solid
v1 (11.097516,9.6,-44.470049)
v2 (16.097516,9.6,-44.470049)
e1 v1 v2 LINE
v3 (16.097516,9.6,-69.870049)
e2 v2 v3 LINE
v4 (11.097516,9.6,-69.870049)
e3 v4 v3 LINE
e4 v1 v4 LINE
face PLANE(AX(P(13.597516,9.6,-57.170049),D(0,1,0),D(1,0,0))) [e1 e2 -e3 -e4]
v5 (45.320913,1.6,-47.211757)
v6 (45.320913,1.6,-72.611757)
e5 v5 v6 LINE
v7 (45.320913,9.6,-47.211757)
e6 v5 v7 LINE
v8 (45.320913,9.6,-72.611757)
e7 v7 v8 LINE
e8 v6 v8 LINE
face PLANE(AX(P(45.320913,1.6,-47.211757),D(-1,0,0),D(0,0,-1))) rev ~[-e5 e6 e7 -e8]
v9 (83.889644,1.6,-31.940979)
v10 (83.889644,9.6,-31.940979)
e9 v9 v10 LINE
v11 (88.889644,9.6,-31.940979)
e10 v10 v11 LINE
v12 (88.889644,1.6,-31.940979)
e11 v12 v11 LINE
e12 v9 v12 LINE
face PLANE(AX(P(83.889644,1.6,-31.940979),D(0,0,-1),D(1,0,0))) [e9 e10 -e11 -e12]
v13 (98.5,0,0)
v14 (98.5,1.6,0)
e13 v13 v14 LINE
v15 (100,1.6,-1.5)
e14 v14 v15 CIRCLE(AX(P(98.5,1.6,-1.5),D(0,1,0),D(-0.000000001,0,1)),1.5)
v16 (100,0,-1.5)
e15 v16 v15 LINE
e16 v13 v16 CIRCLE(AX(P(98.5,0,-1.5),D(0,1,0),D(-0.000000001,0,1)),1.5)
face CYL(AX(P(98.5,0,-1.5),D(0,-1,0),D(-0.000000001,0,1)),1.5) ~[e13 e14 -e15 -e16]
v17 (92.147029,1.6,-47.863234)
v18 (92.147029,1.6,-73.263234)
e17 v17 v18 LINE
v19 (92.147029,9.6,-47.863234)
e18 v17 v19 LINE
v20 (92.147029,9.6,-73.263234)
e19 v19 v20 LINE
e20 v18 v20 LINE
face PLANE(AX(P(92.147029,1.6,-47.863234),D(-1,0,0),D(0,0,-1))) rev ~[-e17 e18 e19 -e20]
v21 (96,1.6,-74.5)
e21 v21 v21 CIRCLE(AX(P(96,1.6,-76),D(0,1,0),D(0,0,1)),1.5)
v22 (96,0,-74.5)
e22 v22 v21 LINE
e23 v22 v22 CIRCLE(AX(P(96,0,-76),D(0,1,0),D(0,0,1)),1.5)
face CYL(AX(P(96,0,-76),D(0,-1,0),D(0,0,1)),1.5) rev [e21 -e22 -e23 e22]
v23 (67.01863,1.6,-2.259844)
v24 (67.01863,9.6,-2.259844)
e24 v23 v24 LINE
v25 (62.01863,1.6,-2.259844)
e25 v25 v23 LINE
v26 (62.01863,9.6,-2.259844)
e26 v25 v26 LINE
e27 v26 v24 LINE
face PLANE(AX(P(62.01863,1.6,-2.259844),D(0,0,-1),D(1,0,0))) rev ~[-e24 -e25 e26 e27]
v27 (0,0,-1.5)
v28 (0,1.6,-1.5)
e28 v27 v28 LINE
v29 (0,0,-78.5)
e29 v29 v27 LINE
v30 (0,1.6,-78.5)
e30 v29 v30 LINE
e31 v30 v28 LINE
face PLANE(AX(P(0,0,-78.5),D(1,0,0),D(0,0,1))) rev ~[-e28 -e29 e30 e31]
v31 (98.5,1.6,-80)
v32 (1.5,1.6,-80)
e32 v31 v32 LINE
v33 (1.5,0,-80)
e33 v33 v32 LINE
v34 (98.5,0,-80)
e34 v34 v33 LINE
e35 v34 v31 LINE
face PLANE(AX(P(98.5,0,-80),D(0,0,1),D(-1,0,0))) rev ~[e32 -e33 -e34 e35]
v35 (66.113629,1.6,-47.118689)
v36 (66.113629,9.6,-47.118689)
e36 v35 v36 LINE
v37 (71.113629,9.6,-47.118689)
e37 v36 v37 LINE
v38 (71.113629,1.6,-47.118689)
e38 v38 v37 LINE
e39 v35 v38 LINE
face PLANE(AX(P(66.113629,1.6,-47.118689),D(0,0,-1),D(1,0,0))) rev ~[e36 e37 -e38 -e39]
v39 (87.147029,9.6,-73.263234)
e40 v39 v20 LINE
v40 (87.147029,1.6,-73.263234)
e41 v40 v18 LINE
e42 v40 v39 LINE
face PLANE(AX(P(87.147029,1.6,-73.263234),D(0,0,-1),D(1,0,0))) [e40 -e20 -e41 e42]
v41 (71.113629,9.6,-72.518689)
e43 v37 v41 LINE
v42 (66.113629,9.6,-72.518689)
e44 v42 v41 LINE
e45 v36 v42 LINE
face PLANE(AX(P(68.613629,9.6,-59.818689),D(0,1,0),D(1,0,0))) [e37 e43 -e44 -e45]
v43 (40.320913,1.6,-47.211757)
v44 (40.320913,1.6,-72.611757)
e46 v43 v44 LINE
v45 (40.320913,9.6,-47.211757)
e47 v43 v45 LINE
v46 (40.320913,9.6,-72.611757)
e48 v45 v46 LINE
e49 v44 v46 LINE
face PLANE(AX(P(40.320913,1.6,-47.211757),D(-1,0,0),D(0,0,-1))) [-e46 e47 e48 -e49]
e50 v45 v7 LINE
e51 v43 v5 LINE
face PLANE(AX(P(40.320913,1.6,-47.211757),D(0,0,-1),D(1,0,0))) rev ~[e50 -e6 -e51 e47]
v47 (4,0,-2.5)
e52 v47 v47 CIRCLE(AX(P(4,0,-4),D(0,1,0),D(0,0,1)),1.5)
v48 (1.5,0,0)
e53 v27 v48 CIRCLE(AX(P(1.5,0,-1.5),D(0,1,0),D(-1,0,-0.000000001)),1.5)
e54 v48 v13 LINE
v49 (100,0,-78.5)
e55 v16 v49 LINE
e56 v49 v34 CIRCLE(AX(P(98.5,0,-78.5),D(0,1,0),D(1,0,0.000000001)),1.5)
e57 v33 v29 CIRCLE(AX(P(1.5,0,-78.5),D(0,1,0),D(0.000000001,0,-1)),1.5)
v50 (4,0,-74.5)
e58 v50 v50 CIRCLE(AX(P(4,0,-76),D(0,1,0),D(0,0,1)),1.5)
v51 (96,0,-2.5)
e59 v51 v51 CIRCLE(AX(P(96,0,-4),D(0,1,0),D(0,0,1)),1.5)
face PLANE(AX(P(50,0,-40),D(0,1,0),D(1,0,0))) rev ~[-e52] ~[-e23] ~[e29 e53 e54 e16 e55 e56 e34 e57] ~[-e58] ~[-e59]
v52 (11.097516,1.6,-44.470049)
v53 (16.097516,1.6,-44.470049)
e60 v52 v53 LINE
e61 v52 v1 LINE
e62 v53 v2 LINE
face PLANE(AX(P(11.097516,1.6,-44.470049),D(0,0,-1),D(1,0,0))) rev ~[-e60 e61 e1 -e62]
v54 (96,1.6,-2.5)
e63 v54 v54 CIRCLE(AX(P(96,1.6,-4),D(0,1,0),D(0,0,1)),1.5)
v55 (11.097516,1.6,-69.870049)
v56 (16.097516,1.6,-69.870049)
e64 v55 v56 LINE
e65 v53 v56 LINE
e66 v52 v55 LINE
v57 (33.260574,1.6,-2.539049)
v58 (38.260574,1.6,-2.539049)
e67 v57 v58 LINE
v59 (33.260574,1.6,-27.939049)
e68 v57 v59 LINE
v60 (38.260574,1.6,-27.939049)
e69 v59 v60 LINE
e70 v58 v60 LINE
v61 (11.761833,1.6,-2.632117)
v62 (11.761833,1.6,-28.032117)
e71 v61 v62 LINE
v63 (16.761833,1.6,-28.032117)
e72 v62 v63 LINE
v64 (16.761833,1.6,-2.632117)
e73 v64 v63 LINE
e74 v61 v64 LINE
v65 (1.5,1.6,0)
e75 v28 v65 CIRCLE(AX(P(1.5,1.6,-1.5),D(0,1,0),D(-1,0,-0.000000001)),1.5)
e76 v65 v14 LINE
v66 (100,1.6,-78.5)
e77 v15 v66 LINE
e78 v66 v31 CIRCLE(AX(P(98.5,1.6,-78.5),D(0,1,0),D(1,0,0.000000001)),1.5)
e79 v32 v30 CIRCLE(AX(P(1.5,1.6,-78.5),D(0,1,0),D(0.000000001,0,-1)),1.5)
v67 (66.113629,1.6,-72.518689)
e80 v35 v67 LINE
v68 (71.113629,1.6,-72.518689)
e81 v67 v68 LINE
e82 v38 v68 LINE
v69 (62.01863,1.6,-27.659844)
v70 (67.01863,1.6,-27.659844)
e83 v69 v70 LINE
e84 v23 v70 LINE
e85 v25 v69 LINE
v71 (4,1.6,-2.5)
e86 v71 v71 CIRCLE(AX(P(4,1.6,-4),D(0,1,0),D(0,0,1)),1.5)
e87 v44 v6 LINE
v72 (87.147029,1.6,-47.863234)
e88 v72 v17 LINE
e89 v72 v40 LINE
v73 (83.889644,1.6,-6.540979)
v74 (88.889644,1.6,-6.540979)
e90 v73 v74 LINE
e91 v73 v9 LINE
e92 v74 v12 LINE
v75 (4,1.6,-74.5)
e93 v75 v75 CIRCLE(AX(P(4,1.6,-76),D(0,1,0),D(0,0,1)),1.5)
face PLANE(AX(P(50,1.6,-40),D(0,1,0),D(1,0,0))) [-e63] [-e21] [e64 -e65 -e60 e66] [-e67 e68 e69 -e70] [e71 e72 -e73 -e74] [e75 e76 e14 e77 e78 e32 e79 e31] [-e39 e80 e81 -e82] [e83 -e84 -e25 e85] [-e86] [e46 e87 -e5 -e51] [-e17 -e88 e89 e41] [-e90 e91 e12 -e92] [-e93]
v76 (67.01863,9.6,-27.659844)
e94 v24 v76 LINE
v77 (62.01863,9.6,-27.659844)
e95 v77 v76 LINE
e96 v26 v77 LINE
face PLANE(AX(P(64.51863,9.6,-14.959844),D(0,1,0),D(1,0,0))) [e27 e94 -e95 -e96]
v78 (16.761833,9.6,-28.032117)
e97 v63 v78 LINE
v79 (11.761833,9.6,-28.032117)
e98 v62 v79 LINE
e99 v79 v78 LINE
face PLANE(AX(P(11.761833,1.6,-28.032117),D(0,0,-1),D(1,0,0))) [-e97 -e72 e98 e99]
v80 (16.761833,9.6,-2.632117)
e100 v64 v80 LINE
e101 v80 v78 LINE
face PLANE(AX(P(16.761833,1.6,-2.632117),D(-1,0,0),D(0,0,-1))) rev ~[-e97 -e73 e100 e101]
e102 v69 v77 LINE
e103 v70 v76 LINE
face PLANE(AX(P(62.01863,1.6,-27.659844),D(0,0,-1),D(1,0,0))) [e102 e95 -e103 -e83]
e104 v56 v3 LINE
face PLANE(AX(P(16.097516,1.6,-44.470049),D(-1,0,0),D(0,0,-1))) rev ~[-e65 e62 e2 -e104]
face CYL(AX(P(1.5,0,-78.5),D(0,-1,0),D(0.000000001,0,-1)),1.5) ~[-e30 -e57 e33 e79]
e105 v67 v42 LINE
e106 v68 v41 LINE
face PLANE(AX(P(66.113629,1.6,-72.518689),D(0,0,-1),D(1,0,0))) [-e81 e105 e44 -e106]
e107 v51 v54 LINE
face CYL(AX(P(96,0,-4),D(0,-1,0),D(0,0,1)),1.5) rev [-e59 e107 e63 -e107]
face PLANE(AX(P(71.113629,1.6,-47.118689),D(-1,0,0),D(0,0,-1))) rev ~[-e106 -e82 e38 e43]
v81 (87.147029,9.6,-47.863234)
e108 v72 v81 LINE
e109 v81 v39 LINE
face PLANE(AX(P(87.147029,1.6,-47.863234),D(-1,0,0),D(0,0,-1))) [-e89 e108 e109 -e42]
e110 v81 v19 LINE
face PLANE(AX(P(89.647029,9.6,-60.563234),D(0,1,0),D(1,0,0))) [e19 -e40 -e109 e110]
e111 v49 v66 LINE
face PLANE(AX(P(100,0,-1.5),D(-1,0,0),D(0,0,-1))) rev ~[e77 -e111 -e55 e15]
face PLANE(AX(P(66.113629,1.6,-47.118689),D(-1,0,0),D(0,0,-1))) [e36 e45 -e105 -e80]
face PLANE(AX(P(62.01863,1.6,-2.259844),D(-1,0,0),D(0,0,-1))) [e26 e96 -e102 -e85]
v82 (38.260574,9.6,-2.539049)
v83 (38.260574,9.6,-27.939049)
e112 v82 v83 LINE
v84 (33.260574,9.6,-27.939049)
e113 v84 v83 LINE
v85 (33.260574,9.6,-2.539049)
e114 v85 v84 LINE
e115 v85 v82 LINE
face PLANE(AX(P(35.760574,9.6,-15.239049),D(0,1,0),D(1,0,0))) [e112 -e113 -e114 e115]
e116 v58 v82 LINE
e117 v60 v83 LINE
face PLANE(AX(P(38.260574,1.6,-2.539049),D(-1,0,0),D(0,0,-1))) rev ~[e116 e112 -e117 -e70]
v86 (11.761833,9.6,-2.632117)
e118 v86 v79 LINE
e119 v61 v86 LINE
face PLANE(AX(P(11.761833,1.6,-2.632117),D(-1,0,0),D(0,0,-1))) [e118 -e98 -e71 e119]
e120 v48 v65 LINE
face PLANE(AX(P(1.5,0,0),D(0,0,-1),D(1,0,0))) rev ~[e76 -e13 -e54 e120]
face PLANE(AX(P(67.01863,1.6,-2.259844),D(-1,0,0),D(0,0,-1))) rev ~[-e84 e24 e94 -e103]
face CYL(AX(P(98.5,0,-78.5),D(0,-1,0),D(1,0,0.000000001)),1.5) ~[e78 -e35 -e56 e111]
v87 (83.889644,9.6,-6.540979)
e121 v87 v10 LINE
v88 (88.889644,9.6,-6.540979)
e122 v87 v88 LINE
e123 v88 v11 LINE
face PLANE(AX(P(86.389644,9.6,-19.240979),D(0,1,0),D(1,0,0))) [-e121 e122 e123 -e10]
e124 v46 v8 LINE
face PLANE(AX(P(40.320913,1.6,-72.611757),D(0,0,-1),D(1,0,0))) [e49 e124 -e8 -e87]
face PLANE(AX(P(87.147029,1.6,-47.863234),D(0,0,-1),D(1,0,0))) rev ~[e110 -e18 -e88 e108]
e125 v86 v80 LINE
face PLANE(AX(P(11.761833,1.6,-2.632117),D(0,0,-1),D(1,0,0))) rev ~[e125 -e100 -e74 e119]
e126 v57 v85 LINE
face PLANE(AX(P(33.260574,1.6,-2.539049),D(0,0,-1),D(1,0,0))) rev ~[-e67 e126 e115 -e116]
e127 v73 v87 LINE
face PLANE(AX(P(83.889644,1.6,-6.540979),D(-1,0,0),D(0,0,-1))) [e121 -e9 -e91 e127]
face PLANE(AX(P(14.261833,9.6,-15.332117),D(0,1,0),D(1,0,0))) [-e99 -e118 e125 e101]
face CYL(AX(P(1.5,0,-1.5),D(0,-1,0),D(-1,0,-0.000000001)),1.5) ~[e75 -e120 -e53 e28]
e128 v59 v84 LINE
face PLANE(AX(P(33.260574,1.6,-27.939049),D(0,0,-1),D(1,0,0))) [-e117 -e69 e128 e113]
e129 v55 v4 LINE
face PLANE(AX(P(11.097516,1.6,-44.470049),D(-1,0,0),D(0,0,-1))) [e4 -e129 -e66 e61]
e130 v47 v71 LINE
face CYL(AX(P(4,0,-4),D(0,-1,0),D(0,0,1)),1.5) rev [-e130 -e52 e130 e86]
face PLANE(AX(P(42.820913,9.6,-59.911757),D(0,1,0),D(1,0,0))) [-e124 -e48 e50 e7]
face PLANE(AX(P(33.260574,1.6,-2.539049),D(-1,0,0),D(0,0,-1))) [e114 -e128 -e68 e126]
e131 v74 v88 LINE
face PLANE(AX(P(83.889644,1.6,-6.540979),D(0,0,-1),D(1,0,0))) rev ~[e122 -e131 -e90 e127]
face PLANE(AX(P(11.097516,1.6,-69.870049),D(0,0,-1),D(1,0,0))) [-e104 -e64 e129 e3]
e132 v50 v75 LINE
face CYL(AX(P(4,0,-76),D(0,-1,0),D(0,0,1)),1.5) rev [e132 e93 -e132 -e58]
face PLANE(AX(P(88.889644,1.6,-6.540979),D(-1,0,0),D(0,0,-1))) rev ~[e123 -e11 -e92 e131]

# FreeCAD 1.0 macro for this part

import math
import FreeCAD as App
import Part
import Sketcher

V = App.Vector


def add_polygon(sketch, points):
    """Adds a closed chain of lines whose ends are joined by coincident constraints."""
    first, n = sketch.GeometryCount, len(points)
    for a, b in zip(points, points[1:] + points[:1]):
        sketch.addGeometry(Part.LineSegment(App.Vector(*a, 0), App.Vector(*b, 0)), False)
    for i in range(n):
        sketch.addConstraint(Sketcher.Constraint("Coincident", first + i, 2, first + (i + 1) % n, 1))

doc = App.newDocument("Part")
body = doc.addObject("PartDesign::Body", "Body")

sketch1 = body.newObject("Sketcher::SketchObject", "Sketch")
sketch1.AttachmentSupport = (doc.getObject("XZ_Plane"), [""])
sketch1.MapMode = "FlatFace"
sketch1.addGeometry(Part.LineSegment(V(1.5, 0, 0), V(98.5, 0, 0)), False)
sketch1.addGeometry(Part.ArcOfCircle(Part.Circle(V(98.5, -1.5, 0), V(0, 0, 1), 1.5), math.radians(0), math.radians(90)), False)
sketch1.addGeometry(Part.LineSegment(V(100, -1.5, 0), V(100, -78.5, 0)), False)
sketch1.addGeometry(Part.ArcOfCircle(Part.Circle(V(98.5, -78.5, 0), V(0, 0, 1), 1.5), math.radians(-90), math.radians(0)), False)
sketch1.addGeometry(Part.LineSegment(V(98.5, -80, 0), V(1.5, -80, 0)), False)
sketch1.addGeometry(Part.ArcOfCircle(Part.Circle(V(1.5, -78.5, 0), V(0, 0, 1), 1.5), math.radians(180), math.radians(270)), False)
sketch1.addGeometry(Part.LineSegment(V(0, -78.5, 0), V(0, -1.5, 0)), False)
sketch1.addGeometry(Part.ArcOfCircle(Part.Circle(V(1.5, -1.5, 0), V(0, 0, 1), 1.5), math.radians(90), math.radians(180)), False)
sketch1.addGeometry(Part.Circle(V(4, -4, 0), V(0, 0, 1), 1.5), False)
sketch1.addGeometry(Part.Circle(V(96, -4, 0), V(0, 0, 1), 1.5), False)
sketch1.addGeometry(Part.Circle(V(4, -76, 0), V(0, 0, 1), 1.5), False)
sketch1.addGeometry(Part.Circle(V(96, -76, 0), V(0, 0, 1), 1.5), False)
sketch1.addConstraint(Sketcher.Constraint("Tangent", 0, 2, 1, 2))
sketch1.addConstraint(Sketcher.Constraint("Tangent", 1, 1, 2, 1))
sketch1.addConstraint(Sketcher.Constraint("Tangent", 2, 2, 3, 2))
sketch1.addConstraint(Sketcher.Constraint("Tangent", 3, 1, 4, 1))
sketch1.addConstraint(Sketcher.Constraint("Tangent", 4, 2, 5, 2))
sketch1.addConstraint(Sketcher.Constraint("Tangent", 5, 1, 6, 1))
sketch1.addConstraint(Sketcher.Constraint("Tangent", 6, 2, 7, 2))
sketch1.addConstraint(Sketcher.Constraint("Tangent", 7, 1, 0, 1))
sketch1.addConstraint(Sketcher.Constraint("Horizontal", 0))
sketch1.addConstraint(Sketcher.Constraint("Vertical", 2))
sketch1.addConstraint(Sketcher.Constraint("Horizontal", 4))
sketch1.addConstraint(Sketcher.Constraint("Vertical", 6))
sketch1.addConstraint(Sketcher.Constraint("Equal", 1, 3))
sketch1.addConstraint(Sketcher.Constraint("Equal", 3, 5))
sketch1.addConstraint(Sketcher.Constraint("Equal", 5, 7))
sketch1.addConstraint(Sketcher.Constraint("Equal", 7, 8))
sketch1.addConstraint(Sketcher.Constraint("Equal", 8, 9))
sketch1.addConstraint(Sketcher.Constraint("Equal", 9, 10))
sketch1.addConstraint(Sketcher.Constraint("Equal", 10, 11))
sketch1.addConstraint(Sketcher.Constraint("PointOnObject", 0, 2, -1))
sketch1.addConstraint(Sketcher.Constraint("PointOnObject", 5, 1, -2))
sketch1.addConstraint(Sketcher.Constraint("Horizontal", 8, 3, 9, 3))
sketch1.addConstraint(Sketcher.Constraint("Horizontal", 10, 3, 11, 3))
sketch1.addConstraint(Sketcher.Constraint("Vertical", 8, 3, 10, 3))
sketch1.addConstraint(Sketcher.Constraint("Vertical", 9, 3, 11, 3))
sketch1.addConstraint(Sketcher.Constraint("Diameter", 8, 3.0))
sketch1.addConstraint(Sketcher.Constraint("DistanceX", 0, 1, 0, 2, 97.0))
sketch1.addConstraint(Sketcher.Constraint("DistanceY", 2, 2, 2, 1, 77.0))
sketch1.addConstraint(Sketcher.Constraint("DistanceX", -1, 1, 8, 3, 4.0))
sketch1.addConstraint(Sketcher.Constraint("DistanceY", 8, 3, -1, 1, 4.0))
sketch1.addConstraint(Sketcher.Constraint("DistanceX", -1, 1, 9, 3, 96.0))
sketch1.addConstraint(Sketcher.Constraint("DistanceY", 10, 3, -1, 1, 76.0))
pad1 = body.newObject("PartDesign::Pad", "Pad")
pad1.Profile = sketch1
pad1.Length = 1.6
pad1.Reversed = True

sketch2 = body.newObject("Sketcher::SketchObject", "Sketch001")
sketch2.AttachmentSupport = (doc.getObject("XZ_Plane"), [""])
sketch2.MapMode = "FlatFace"
sketch2.AttachmentOffset = App.Placement(V(0, 0, -1.6), App.Rotation())
add_polygon(sketch2, [(11.761833, -28.032117), (11.761833, -2.632117), (16.761833, -2.632117), (16.761833, -28.032117)])
add_polygon(sketch2, [(11.097516, -69.870049), (11.097516, -44.470049), (16.097516, -44.470049), (16.097516, -69.870049)])
add_polygon(sketch2, [(87.147029, -73.263234), (87.147029, -47.863234), (92.147029, -47.863234), (92.147029, -73.263234)])
add_polygon(sketch2, [(83.889644, -31.940979), (83.889644, -6.540979), (88.889644, -6.540979), (88.889644, -31.940979)])
add_polygon(sketch2, [(40.320913, -72.611757), (40.320913, -47.211757), (45.320913, -47.211757), (45.320913, -72.611757)])
add_polygon(sketch2, [(66.113629, -72.518689), (66.113629, -47.118689), (71.113629, -47.118689), (71.113629, -72.518689)])
add_polygon(sketch2, [(33.260574, -27.939049), (33.260574, -2.539049), (38.260574, -2.539049), (38.260574, -27.939049)])
add_polygon(sketch2, [(62.01863, -27.659844), (62.01863, -2.259844), (67.01863, -2.259844), (67.01863, -27.659844)])
sketch2.addConstraint(Sketcher.Constraint("Vertical", 0))
sketch2.addConstraint(Sketcher.Constraint("Horizontal", 1))
sketch2.addConstraint(Sketcher.Constraint("Vertical", 2))
sketch2.addConstraint(Sketcher.Constraint("Horizontal", 3))
sketch2.addConstraint(Sketcher.Constraint("Vertical", 4))
sketch2.addConstraint(Sketcher.Constraint("Horizontal", 5))
sketch2.addConstraint(Sketcher.Constraint("Vertical", 6))
sketch2.addConstraint(Sketcher.Constraint("Horizontal", 7))
sketch2.addConstraint(Sketcher.Constraint("Vertical", 8))
sketch2.addConstraint(Sketcher.Constraint("Horizontal", 9))
sketch2.addConstraint(Sketcher.Constraint("Vertical", 10))
sketch2.addConstraint(Sketcher.Constraint("Horizontal", 11))
sketch2.addConstraint(Sketcher.Constraint("Vertical", 12))
sketch2.addConstraint(Sketcher.Constraint("Horizontal", 13))
sketch2.addConstraint(Sketcher.Constraint("Vertical", 14))
sketch2.addConstraint(Sketcher.Constraint("Horizontal", 15))
sketch2.addConstraint(Sketcher.Constraint("Vertical", 16))
sketch2.addConstraint(Sketcher.Constraint("Horizontal", 17))
sketch2.addConstraint(Sketcher.Constraint("Vertical", 18))
sketch2.addConstraint(Sketcher.Constraint("Horizontal", 19))
sketch2.addConstraint(Sketcher.Constraint("Vertical", 20))
sketch2.addConstraint(Sketcher.Constraint("Horizontal", 21))
sketch2.addConstraint(Sketcher.Constraint("Vertical", 22))
sketch2.addConstraint(Sketcher.Constraint("Horizontal", 23))
sketch2.addConstraint(Sketcher.Constraint("Vertical", 24))
sketch2.addConstraint(Sketcher.Constraint("Horizontal", 25))
sketch2.addConstraint(Sketcher.Constraint("Vertical", 26))
sketch2.addConstraint(Sketcher.Constraint("Horizontal", 27))
sketch2.addConstraint(Sketcher.Constraint("Vertical", 28))
sketch2.addConstraint(Sketcher.Constraint("Horizontal", 29))
sketch2.addConstraint(Sketcher.Constraint("Vertical", 30))
sketch2.addConstraint(Sketcher.Constraint("Horizontal", 31))
sketch2.addConstraint(Sketcher.Constraint("Equal", 3, 5))
sketch2.addConstraint(Sketcher.Constraint("Equal", 7, 9))
sketch2.addConstraint(Sketcher.Constraint("Equal", 11, 13))
sketch2.addConstraint(Sketcher.Constraint("Equal", 15, 17))
sketch2.addConstraint(Sketcher.Constraint("Equal", 19, 21))
sketch2.addConstraint(Sketcher.Constraint("Equal", 23, 25))
sketch2.addConstraint(Sketcher.Constraint("Equal", 27, 29))
sketch2.addConstraint(Sketcher.Constraint("Equal", 2, 4))
sketch2.addConstraint(Sketcher.Constraint("Equal", 6, 8))
sketch2.addConstraint(Sketcher.Constraint("Equal", 10, 12))
sketch2.addConstraint(Sketcher.Constraint("Equal", 14, 16))
sketch2.addConstraint(Sketcher.Constraint("Equal", 18, 20))
sketch2.addConstraint(Sketcher.Constraint("Equal", 22, 24))
sketch2.addConstraint(Sketcher.Constraint("Equal", 26, 28))
sketch2.addConstraint(Sketcher.Constraint("DistanceX", 1, 1, 1, 2, 5.0))
sketch2.addConstraint(Sketcher.Constraint("DistanceY", 0, 1, 0, 2, 25.4))
sketch2.addConstraint(Sketcher.Constraint("DistanceX", 20, 2, 30, 2, 0.905002))
sketch2.addConstraint(Sketcher.Constraint("DistanceX", 20, 2, 8, 2, 21.0334))
sketch2.addConstraint(Sketcher.Constraint("DistanceY", 4, 2, -1, 1, 44.470049))
sketch2.addConstraint(Sketcher.Constraint("DistanceX", -1, 1, 8, 2, 87.147029))
sketch2.addConstraint(Sketcher.Constraint("DistanceY", 12, 2, -1, 1, 6.540979))
sketch2.addConstraint(Sketcher.Constraint("DistanceY", 20, 2, -1, 1, 47.118689))
sketch2.addConstraint(Sketcher.Constraint("DistanceY", 24, 2, -1, 1, 2.539049))
sketch2.addConstraint(Sketcher.Constraint("DistanceY", 4, 2, 3, 2, 16.437932))
sketch2.addConstraint(Sketcher.Constraint("DistanceX", 1, 2, 12, 2, 67.127811))
sketch2.addConstraint(Sketcher.Constraint("DistanceY", 16, 2, 5, 2, 2.741709))
sketch2.addConstraint(Sketcher.Constraint("DistanceX", 2, 2, 16, 2, 23.55908))
sketch2.addConstraint(Sketcher.Constraint("DistanceX", 1, 2, 24, 2, 16.498741))
sketch2.addConstraint(Sketcher.Constraint("DistanceX", -1, 1, 0, 2, 11.761833))
sketch2.addConstraint(Sketcher.Constraint("DistanceX", -1, 1, 4, 2, 11.097516))
sketch2.addConstraint(Sketcher.Constraint("DistanceY", 8, 2, -1, 1, 47.863234))
sketch2.addConstraint(Sketcher.Constraint("DistanceY", 28, 2, -1, 1, 2.259844))
pad2 = body.newObject("PartDesign::Pad", "Pad001")
pad2.Profile = sketch2
pad2.Length = 8
pad2.Reversed = True

doc.recompute()
